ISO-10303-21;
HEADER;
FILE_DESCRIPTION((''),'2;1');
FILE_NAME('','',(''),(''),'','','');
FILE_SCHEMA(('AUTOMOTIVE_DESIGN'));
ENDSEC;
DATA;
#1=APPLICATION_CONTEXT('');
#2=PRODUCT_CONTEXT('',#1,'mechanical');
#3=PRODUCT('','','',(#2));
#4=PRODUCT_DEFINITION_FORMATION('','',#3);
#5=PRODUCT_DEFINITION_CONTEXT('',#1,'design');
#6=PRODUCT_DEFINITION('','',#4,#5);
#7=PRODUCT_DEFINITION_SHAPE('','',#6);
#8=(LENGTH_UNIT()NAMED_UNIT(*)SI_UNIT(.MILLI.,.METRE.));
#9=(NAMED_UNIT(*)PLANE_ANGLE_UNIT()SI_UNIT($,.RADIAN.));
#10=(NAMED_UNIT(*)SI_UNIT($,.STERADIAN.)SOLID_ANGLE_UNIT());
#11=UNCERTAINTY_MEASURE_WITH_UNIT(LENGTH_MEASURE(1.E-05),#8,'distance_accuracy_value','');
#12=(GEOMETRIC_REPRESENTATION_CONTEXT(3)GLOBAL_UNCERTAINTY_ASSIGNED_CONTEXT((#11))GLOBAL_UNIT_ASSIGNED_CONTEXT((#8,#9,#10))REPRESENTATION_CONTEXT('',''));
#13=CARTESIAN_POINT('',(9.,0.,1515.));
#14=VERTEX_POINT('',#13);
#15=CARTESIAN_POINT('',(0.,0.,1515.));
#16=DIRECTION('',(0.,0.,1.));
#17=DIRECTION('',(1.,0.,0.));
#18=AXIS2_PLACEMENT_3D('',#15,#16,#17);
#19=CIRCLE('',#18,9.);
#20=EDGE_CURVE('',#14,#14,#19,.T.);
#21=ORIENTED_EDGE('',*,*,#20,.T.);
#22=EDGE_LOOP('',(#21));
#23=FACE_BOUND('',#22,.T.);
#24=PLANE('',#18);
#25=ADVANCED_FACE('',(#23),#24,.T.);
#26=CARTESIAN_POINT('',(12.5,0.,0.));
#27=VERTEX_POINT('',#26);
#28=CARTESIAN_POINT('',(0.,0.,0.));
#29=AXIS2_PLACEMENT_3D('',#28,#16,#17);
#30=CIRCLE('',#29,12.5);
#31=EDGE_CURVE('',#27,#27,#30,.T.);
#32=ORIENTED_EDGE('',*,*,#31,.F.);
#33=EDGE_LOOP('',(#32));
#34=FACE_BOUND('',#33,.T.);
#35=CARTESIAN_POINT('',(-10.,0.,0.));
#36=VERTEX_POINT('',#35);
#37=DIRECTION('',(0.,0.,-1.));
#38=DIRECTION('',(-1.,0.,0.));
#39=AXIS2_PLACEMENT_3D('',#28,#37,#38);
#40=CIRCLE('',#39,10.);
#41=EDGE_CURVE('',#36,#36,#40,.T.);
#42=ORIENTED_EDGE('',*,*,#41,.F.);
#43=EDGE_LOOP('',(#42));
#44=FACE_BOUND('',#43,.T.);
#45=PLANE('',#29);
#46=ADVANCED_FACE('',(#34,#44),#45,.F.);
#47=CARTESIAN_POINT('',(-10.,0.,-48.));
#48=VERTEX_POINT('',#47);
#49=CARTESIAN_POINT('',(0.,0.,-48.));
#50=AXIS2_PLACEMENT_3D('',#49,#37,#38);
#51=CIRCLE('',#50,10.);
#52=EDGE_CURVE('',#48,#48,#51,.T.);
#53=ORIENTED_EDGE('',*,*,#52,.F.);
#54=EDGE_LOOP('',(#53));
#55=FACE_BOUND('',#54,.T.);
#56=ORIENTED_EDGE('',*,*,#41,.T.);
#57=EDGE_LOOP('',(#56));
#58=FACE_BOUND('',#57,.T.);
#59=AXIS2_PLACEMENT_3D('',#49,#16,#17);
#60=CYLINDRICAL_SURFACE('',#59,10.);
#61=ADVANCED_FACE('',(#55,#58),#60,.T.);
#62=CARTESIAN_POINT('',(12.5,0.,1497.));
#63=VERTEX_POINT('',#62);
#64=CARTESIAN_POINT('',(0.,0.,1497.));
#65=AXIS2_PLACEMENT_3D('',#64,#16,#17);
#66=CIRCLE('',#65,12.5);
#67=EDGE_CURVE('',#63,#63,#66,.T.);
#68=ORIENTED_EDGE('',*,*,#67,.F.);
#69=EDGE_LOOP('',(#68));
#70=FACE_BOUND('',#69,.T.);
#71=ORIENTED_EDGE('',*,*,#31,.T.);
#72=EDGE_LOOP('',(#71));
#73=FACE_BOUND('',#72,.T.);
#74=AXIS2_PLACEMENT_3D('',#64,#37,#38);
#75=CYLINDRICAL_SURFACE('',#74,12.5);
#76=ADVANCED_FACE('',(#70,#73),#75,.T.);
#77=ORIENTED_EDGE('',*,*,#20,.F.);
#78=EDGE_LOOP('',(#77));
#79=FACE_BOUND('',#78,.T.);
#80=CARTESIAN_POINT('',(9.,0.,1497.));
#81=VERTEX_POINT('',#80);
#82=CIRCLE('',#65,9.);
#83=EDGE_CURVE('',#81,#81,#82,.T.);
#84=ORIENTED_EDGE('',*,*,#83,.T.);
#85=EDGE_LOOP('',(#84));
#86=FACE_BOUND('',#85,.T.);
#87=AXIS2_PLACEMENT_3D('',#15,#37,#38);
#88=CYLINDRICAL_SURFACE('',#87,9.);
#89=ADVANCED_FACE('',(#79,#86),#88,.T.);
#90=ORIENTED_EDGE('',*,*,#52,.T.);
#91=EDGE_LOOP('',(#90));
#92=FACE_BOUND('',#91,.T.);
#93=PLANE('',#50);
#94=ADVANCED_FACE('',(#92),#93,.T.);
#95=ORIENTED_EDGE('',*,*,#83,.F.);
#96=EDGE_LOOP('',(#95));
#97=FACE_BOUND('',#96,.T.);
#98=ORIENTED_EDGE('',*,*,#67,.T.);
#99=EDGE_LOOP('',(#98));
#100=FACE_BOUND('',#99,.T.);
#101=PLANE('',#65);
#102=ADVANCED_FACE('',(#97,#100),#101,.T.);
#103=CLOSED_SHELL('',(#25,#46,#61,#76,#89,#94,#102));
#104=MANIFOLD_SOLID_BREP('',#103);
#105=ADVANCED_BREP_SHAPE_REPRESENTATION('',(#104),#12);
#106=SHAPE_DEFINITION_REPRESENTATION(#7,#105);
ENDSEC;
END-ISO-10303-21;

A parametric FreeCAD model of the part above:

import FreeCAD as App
import Part
import Sketcher

V = App.Vector
Q = App.Units.Quantity

doc = App.newDocument("Part")
body = doc.addObject("PartDesign::Body", "Body")

sketch1 = body.newObject("Sketcher::SketchObject", "Sketch")
sketch1.AttachmentSupport = (doc.getObject("XY_Plane"), [""])
sketch1.MapMode = "FlatFace"
sketch1.addGeometry(Part.Circle(V(0, 0, 0), V(0, 0, 1), 12), False)
sketch1.addConstraint(Sketcher.Constraint("Coincident", 0, 3, -1, 1))
sketch1.addConstraint(Sketcher.Constraint("Diameter", 0, Q("25 mm")))
pad1 = body.newObject("PartDesign::Pad", "Pad")
pad1.Profile = sketch1
pad1.Length = 1497

sketch2 = body.newObject("Sketcher::SketchObject", "Sketch001")
sketch2.AttachmentSupport = (doc.getObject("XY_Plane"), [""])
sketch2.MapMode = "FlatFace"
sketch2.AttachmentOffset = App.Placement(V(0, 0, 1497), App.Rotation())
sketch2.addGeometry(Part.Circle(V(0, 0, 0), V(0, 0, 1), 9), False)
sketch2.addConstraint(Sketcher.Constraint("Coincident", 0, 3, -1, 1))
sketch2.addConstraint(Sketcher.Constraint("Diameter", 0, Q("18 mm")))
pad2 = body.newObject("PartDesign::Pad", "Pad001")
pad2.Profile = sketch2
pad2.Length = 18

sketch3 = body.newObject("Sketcher::SketchObject", "Sketch002")
sketch3.AttachmentSupport = (doc.getObject("XY_Plane"), [""])
sketch3.MapMode = "FlatFace"
sketch3.addGeometry(Part.Circle(V(0, 0, 0), V(0, 0, 1), 10), False)
sketch3.addConstraint(Sketcher.Constraint("Coincident", 0, 3, -1, 1))
sketch3.addConstraint(Sketcher.Constraint("Diameter", 0, Q("20 mm")))
pad3 = body.newObject("PartDesign::Pad", "Pad002")
pad3.Profile = sketch3
pad3.Length = 48
pad3.Reversed = True

doc.recompute()
